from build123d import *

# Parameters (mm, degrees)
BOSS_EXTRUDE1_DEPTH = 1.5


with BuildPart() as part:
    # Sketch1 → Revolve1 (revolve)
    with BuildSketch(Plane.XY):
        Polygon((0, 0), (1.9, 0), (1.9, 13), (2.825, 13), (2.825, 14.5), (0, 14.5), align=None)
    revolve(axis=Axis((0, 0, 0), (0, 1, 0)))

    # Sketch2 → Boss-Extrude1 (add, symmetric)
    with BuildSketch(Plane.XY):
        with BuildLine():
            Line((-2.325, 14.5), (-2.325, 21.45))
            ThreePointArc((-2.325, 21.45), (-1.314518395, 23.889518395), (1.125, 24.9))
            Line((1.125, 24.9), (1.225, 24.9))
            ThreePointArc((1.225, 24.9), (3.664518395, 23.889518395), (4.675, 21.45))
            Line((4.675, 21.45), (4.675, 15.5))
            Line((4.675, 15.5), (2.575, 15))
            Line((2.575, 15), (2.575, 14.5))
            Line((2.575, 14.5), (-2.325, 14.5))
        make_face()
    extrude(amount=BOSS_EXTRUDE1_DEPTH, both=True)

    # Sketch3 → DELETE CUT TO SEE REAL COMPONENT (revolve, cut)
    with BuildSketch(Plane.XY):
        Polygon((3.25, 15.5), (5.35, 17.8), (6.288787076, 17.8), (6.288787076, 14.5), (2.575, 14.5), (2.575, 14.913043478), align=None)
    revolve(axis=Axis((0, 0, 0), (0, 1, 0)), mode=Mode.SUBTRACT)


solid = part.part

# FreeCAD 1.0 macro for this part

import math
import FreeCAD as App
import Part
import Sketcher

doc = App.newDocument("Part")
body = doc.addObject("PartDesign::Body", "Body")

sketch1 = body.newObject("Sketcher::SketchObject", "Sketch")
sketch1.AttachmentSupport = (doc.getObject("XY_Plane"), [""])
sketch1.MapMode = "FlatFace"
sketch1.addGeometry(Part.LineSegment(App.Vector(0, 0, 0), App.Vector(1.9, 0, 0)), False)
sketch1.addGeometry(Part.LineSegment(App.Vector(1.9, 0, 0), App.Vector(1.9, 13, 0)), False)
sketch1.addGeometry(Part.LineSegment(App.Vector(1.9, 13, 0), App.Vector(2.825, 13, 0)), False)
sketch1.addGeometry(Part.LineSegment(App.Vector(2.825, 13, 0), App.Vector(2.825, 14.5, 0)), False)
sketch1.addGeometry(Part.LineSegment(App.Vector(2.825, 14.5, 0), App.Vector(0, 14.5, 0)), False)
sketch1.addGeometry(Part.LineSegment(App.Vector(0, 14.5, 0), App.Vector(0, 0, 0)), False)
sketch1.addConstraint(Sketcher.Constraint("Coincident", 0, 2, 1, 1))
sketch1.addConstraint(Sketcher.Constraint("Coincident", 1, 2, 2, 1))
sketch1.addConstraint(Sketcher.Constraint("Coincident", 2, 2, 3, 1))
sketch1.addConstraint(Sketcher.Constraint("Coincident", 3, 2, 4, 1))
sketch1.addConstraint(Sketcher.Constraint("Coincident", 4, 2, 5, 1))
sketch1.addConstraint(Sketcher.Constraint("Coincident", 5, 2, 0, 1))
sketch1.addConstraint(Sketcher.Constraint("Horizontal", 0))
sketch1.addConstraint(Sketcher.Constraint("Vertical", 1))
sketch1.addConstraint(Sketcher.Constraint("Horizontal", 2))
sketch1.addConstraint(Sketcher.Constraint("Vertical", 3))
sketch1.addConstraint(Sketcher.Constraint("Horizontal", 4))
sketch1.addConstraint(Sketcher.Constraint("Vertical", 5))
sketch1.addConstraint(Sketcher.Constraint("Coincident", 5, 2, -1, 1))
sketch1.addConstraint(Sketcher.Constraint("DistanceY", 1, 1, 1, 2, 13.0))
sketch1.addConstraint(Sketcher.Constraint("DistanceX", 0, 1, 0, 2, 1.9))
sketch1.addConstraint(Sketcher.Constraint("DistanceY", 3, 1, 3, 2, 1.5))
sketch1.addConstraint(Sketcher.Constraint("DistanceX", 2, 1, 2, 2, 0.925))
revolution = body.newObject("PartDesign::Revolution", "Revolution")
revolution.Profile = sketch1
revolution.ReferenceAxis = (sketch1, ["V_Axis"])
revolution.Angle = 360

sketch2 = body.newObject("Sketcher::SketchObject", "Sketch001")
sketch2.AttachmentSupport = (doc.getObject("XY_Plane"), [""])
sketch2.MapMode = "FlatFace"
sketch2.addGeometry(Part.LineSegment(App.Vector(-2.325, 21.45, 0), App.Vector(-2.325, 14.5, 0)), False)
sketch2.addGeometry(Part.LineSegment(App.Vector(-2.325, 14.5, 0), App.Vector(2.575, 14.5, 0)), False)
sketch2.addGeometry(Part.LineSegment(App.Vector(2.575, 14.5, 0), App.Vector(2.575, 15, 0)), False)
sketch2.addGeometry(Part.LineSegment(App.Vector(2.575, 15, 0), App.Vector(4.675, 15.5, 0)), False)
sketch2.addGeometry(Part.LineSegment(App.Vector(4.675, 15.5, 0), App.Vector(4.675, 21.45, 0)), False)
sketch2.addGeometry(Part.ArcOfCircle(Part.Circle(App.Vector(1.225, 21.45, 0), App.Vector(0, 0, 1), 3.45), math.radians(0), math.radians(90)), False)
sketch2.addGeometry(Part.LineSegment(App.Vector(1.225, 24.9, 0), App.Vector(1.125, 24.9, 0)), False)
sketch2.addGeometry(Part.ArcOfCircle(Part.Circle(App.Vector(1.125, 21.45, 0), App.Vector(0, 0, 1), 3.45), math.radians(90), math.radians(180)), False)
sketch2.addConstraint(Sketcher.Constraint("Coincident", 0, 2, 1, 1))
sketch2.addConstraint(Sketcher.Constraint("Coincident", 1, 2, 2, 1))
sketch2.addConstraint(Sketcher.Constraint("Coincident", 2, 2, 3, 1))
sketch2.addConstraint(Sketcher.Constraint("Coincident", 3, 2, 4, 1))
sketch2.addConstraint(Sketcher.Constraint("Tangent", 4, 2, 5, 1))
sketch2.addConstraint(Sketcher.Constraint("Tangent", 5, 2, 6, 1))
sketch2.addConstraint(Sketcher.Constraint("Tangent", 6, 2, 7, 1))
sketch2.addConstraint(Sketcher.Constraint("Tangent", 7, 2, 0, 1))
sketch2.addConstraint(Sketcher.Constraint("Vertical", 0))
sketch2.addConstraint(Sketcher.Constraint("Horizontal", 1))
sketch2.addConstraint(Sketcher.Constraint("Vertical", 2))
sketch2.addConstraint(Sketcher.Constraint("Vertical", 4))
sketch2.addConstraint(Sketcher.Constraint("Horizontal", 6))
sketch2.addConstraint(Sketcher.Constraint("Equal", 5, 7))
sketch2.addConstraint(Sketcher.Constraint("Radius", 5, 3.45))
sketch2.addConstraint(Sketcher.Constraint("DistanceX", 1, 1, 1, 2, 4.9))
sketch2.addConstraint(Sketcher.Constraint("DistanceX", 6, 2, 6, 1, 0.1))
sketch2.addConstraint(Sketcher.Constraint("DistanceY", 2, 1, 2, 2, 0.5))
sketch2.addConstraint(Sketcher.Constraint("DistanceY", -1, 1, 2, 2, 15.0))
sketch2.addConstraint(Sketcher.Constraint("DistanceY", 1, 2, 3, 2, 1.0))
sketch2.addConstraint(Sketcher.Constraint("DistanceY", 0, 2, 0, 1, 6.95))
sketch2.addConstraint(Sketcher.Constraint("DistanceX", -1, 1, 5, 3, 1.225))
pad1 = body.newObject("PartDesign::Pad", "Pad")
pad1.Profile = sketch2
pad1.Length = 3
pad1.Midplane = True

sketch3 = body.newObject("Sketcher::SketchObject", "Sketch002")
sketch3.AttachmentSupport = (doc.getObject("XY_Plane"), [""])
sketch3.MapMode = "FlatFace"
sketch3.addGeometry(Part.LineSegment(App.Vector(5.35, 17.8, 0), App.Vector(3.25, 15.5, 0)), False)
sketch3.addGeometry(Part.LineSegment(App.Vector(3.25, 15.5, 0), App.Vector(2.575, 14.913043, 0)), False)
sketch3.addGeometry(Part.LineSegment(App.Vector(2.575, 14.913043, 0), App.Vector(2.575, 14.5, 0)), False)
sketch3.addGeometry(Part.LineSegment(App.Vector(2.575, 14.5, 0), App.Vector(6.288787, 14.5, 0)), False)
sketch3.addGeometry(Part.LineSegment(App.Vector(6.288787, 14.5, 0), App.Vector(6.288787, 17.8, 0)), False)
sketch3.addGeometry(Part.LineSegment(App.Vector(6.288787, 17.8, 0), App.Vector(5.35, 17.8, 0)), False)
sketch3.addConstraint(Sketcher.Constraint("Coincident", 0, 2, 1, 1))
sketch3.addConstraint(Sketcher.Constraint("Coincident", 1, 2, 2, 1))
sketch3.addConstraint(Sketcher.Constraint("Coincident", 2, 2, 3, 1))
sketch3.addConstraint(Sketcher.Constraint("Coincident", 3, 2, 4, 1))
sketch3.addConstraint(Sketcher.Constraint("Coincident", 4, 2, 5, 1))
sketch3.addConstraint(Sketcher.Constraint("Coincident", 5, 2, 0, 1))
sketch3.addConstraint(Sketcher.Constraint("Vertical", 2))
sketch3.addConstraint(Sketcher.Constraint("Horizontal", 3))
sketch3.addConstraint(Sketcher.Constraint("Vertical", 4))
sketch3.addConstraint(Sketcher.Constraint("Horizontal", 5))
sketch3.addConstraint(Sketcher.Constraint("DistanceY", 4, 1, 4, 2, 3.3))
sketch3.addConstraint(Sketcher.Constraint("DistanceY", 2, 2, 0, 2, 1.0))
sketch3.addConstraint(Sketcher.Constraint("DistanceY", -1, 1, 0, 2, 15.5))
sketch3.addConstraint(Sketcher.Constraint("DistanceX", 0, 2, 5, 2, 2.1))
sketch3.addConstraint(Sketcher.Constraint("DistanceX", -1, 1, 0, 2, 3.25))
sketch3.addConstraint(Sketcher.Constraint("DistanceX", -1, 1, 1, 2, 2.575))
sketch3.addConstraint(Sketcher.Constraint("DistanceX", 3, 1, 3, 2, 3.713787))
sketch3.addConstraint(Sketcher.Constraint("DistanceY", 2, 2, 2, 1, 0.413043))
groove = body.newObject("PartDesign::Groove", "Groove")
groove.Profile = sketch3
groove.ReferenceAxis = (sketch3, ["V_Axis"])
groove.Angle = 360

doc.recompute()
